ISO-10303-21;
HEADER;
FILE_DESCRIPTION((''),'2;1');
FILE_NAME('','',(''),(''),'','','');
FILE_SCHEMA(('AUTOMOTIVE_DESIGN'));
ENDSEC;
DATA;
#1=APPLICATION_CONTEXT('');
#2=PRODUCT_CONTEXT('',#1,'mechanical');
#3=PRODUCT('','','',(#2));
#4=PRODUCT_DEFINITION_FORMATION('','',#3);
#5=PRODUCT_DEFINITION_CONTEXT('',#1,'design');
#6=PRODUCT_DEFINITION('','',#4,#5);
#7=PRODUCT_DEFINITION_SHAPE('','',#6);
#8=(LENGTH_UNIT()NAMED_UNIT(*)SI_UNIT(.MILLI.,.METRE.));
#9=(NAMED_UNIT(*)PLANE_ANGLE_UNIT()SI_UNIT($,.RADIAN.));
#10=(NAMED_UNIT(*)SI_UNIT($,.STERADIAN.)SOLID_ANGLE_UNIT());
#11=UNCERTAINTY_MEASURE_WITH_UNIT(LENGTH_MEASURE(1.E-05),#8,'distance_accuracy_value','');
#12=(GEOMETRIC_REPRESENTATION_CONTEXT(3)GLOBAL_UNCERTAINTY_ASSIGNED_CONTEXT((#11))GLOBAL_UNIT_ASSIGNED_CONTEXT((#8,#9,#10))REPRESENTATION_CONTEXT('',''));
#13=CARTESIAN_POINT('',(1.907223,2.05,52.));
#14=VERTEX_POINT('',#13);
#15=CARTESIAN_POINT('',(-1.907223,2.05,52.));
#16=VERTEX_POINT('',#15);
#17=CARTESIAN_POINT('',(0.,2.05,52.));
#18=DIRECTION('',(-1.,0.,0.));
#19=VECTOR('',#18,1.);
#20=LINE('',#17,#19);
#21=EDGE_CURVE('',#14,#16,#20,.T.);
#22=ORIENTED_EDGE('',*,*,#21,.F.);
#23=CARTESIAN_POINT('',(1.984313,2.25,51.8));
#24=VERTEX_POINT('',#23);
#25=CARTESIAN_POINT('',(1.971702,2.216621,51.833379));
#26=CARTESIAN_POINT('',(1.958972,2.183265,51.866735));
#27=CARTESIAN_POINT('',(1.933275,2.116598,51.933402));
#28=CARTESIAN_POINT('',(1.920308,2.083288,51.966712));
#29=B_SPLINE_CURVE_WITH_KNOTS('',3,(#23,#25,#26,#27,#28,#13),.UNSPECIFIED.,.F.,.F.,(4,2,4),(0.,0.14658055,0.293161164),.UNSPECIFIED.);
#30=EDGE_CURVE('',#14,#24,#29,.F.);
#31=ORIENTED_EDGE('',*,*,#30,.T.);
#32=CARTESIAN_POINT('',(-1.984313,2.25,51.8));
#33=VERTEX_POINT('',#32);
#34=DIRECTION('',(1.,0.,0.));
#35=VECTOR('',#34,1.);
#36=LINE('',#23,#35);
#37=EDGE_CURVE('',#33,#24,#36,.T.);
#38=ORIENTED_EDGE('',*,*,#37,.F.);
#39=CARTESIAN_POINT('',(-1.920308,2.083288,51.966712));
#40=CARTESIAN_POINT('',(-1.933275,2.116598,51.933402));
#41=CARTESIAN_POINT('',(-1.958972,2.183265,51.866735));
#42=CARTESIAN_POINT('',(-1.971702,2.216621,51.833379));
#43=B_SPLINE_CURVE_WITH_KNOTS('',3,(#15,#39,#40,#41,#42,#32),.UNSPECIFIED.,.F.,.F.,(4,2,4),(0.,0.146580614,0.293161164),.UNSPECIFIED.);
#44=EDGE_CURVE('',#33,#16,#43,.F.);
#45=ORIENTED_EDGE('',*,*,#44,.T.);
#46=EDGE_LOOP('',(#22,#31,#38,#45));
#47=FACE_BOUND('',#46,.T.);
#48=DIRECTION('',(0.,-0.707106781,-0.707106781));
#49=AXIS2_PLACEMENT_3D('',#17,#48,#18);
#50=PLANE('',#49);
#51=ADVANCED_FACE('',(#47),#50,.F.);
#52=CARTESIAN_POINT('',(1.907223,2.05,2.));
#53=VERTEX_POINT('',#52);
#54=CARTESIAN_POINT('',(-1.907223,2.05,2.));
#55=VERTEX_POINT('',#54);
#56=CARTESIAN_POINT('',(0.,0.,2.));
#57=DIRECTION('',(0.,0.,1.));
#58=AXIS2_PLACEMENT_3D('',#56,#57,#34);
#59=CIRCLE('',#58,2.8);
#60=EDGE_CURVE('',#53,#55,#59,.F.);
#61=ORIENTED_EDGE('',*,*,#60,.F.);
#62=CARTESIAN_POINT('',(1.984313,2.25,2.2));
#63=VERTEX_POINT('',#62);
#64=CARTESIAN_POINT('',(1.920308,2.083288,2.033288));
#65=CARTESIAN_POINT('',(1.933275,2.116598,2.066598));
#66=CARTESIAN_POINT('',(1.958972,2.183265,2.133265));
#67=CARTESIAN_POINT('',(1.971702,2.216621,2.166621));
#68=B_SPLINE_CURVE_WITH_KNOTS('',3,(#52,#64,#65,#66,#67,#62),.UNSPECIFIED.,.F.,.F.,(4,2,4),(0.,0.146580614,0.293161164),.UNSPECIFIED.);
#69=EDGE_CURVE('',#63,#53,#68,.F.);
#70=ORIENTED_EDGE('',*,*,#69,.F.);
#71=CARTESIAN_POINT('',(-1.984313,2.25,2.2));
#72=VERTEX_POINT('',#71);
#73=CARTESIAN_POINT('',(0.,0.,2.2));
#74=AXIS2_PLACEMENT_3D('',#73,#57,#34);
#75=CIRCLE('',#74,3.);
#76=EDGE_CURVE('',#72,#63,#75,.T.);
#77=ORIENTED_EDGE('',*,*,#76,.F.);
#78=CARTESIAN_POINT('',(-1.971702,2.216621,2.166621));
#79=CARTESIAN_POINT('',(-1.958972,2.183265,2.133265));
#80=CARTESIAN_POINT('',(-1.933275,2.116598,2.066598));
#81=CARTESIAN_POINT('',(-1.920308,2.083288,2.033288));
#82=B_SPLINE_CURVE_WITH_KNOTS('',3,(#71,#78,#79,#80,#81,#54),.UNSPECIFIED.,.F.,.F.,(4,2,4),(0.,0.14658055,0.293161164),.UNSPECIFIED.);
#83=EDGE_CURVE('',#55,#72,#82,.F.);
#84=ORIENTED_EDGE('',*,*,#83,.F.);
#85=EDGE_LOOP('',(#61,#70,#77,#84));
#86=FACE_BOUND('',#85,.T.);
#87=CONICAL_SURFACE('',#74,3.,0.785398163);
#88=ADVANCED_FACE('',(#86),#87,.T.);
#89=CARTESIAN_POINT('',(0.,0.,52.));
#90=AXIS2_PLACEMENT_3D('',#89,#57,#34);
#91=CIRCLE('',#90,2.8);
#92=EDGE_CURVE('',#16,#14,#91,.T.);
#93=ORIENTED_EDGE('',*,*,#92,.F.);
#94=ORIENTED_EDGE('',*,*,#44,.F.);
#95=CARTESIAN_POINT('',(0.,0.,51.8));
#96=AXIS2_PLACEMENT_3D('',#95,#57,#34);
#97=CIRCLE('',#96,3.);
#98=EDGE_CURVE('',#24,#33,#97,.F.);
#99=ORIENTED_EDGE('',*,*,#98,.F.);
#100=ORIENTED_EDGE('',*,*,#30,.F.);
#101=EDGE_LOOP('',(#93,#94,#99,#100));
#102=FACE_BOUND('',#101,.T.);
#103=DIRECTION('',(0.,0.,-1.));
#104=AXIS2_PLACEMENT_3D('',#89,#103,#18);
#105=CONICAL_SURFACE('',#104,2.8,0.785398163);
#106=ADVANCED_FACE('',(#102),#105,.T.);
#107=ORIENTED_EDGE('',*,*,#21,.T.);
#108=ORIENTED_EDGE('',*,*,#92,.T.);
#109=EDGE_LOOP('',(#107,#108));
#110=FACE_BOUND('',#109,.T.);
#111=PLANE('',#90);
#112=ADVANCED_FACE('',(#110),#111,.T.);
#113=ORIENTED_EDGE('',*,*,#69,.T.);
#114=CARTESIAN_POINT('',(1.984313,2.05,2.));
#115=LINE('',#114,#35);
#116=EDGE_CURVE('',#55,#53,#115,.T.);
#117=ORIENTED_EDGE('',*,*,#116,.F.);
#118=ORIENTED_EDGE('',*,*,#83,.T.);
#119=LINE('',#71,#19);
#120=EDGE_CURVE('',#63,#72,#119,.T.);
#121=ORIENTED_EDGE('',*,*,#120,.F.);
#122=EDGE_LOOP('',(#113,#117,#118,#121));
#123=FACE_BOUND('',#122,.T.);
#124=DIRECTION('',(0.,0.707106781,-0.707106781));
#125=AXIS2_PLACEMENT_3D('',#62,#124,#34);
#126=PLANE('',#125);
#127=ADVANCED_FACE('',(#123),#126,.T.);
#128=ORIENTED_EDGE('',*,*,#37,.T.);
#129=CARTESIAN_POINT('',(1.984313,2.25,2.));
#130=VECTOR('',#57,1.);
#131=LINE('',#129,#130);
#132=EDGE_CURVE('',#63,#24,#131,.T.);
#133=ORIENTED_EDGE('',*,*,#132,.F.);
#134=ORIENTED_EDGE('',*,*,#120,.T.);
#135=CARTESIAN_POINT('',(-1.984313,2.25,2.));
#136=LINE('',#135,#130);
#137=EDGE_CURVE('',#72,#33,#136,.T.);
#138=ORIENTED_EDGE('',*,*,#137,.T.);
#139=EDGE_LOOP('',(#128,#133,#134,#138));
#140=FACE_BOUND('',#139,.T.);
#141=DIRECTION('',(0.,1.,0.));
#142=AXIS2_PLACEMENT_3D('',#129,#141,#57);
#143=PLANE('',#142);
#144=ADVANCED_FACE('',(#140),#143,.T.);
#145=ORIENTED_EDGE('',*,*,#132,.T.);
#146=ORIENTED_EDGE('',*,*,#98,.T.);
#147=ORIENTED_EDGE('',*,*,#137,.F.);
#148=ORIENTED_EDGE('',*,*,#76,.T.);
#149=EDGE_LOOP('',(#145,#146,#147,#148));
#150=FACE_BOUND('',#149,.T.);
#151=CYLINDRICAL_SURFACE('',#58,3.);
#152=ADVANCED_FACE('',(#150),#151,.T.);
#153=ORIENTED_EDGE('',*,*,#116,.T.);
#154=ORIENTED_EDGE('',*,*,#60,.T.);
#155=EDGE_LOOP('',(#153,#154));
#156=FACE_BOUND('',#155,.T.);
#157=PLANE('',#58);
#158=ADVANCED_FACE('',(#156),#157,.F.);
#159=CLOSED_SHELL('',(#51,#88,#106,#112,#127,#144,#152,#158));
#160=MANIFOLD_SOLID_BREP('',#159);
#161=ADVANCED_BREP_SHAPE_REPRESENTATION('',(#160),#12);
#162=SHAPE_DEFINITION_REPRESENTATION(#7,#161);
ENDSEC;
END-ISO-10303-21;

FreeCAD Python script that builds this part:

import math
import FreeCAD as App
import Part
import Sketcher

V = App.Vector
Q = App.Units.Quantity


def edges_at(feature, points):
    """Names of the edges that pass closest to the given points."""
    edges = feature.Shape.Edges
    near = lambda p: min(range(len(edges)), key=lambda i: edges[i].distToShape(Part.Vertex(*p))[0])
    return sorted({f"Edge{near(p) + 1}" for p in points})

doc = App.newDocument("Part")
body = doc.addObject("PartDesign::Body", "Body")

sketch1 = body.newObject("Sketcher::SketchObject", "Sketch")
sketch1.AttachmentSupport = (doc.getObject("XY_Plane"), [""])
sketch1.MapMode = "FlatFace"
sketch1.AttachmentOffset = App.Placement(V(0, 0, 52), App.Rotation())
sketch1.addGeometry([
    Part.LineSegment(V(1.984313, 2.25, 0), V(-1.984313, 2.25, 0)),
    Part.ArcOfCircle(Part.Circle(V(0, 0, 0), V(0, 0, 1), 3), math.radians(131.409622), math.radians(408.590378)),
], False)
sketch1.addConstraint([
    Sketcher.Constraint("Coincident", 0, 1, 1, 2),
    Sketcher.Constraint("Coincident", 1, 1, 0, 2),
    Sketcher.Constraint("Horizontal", 0),
    Sketcher.Constraint("Coincident", 1, 3, -1, 1),
    Sketcher.Constraint("Radius", 1, Q("3 mm")),
    Sketcher.Constraint("DistanceY", -1, 1, 0, 1, Q("2.25 mm")),
])
pad1 = body.newObject("PartDesign::Pad", "Pad")
pad1.Profile = sketch1
pad1.Length = 50
pad1.Reversed = True
doc.recompute()

chamfer = body.newObject("PartDesign::Chamfer", "Chamfer")
chamfer.Base = (pad1, edges_at(pad1, [
    (0, 2.25, 52),
    (0, -3, 52),
    (0, -3, 2),
    (0, 2.25, 2),
]))
chamfer.Size = 0.2

doc.recompute()
